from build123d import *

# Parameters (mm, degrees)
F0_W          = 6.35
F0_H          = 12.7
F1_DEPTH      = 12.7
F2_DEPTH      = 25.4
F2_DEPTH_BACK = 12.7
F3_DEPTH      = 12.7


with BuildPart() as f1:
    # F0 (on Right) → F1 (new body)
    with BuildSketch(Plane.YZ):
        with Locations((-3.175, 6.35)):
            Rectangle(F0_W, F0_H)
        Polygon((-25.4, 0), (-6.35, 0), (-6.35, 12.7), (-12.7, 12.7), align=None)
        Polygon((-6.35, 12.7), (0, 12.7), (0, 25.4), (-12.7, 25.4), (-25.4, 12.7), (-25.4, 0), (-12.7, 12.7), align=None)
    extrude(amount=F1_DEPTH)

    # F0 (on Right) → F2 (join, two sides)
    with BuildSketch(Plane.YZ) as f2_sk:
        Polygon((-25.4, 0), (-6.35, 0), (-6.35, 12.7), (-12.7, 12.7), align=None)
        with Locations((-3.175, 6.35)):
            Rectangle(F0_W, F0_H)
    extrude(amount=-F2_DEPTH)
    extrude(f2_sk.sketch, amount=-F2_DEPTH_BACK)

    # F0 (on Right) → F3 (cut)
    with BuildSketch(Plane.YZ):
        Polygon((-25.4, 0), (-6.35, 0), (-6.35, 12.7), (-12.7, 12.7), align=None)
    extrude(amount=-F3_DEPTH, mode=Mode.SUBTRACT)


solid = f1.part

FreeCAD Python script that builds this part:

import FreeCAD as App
import Part
import Sketcher
from FreeCAD import Vector
Q = App.Units.Quantity

doc = App.newDocument("Part")
params = doc.addObject("Spreadsheet::Sheet", "Params")
for row, (alias, value) in enumerate([
    ("sketch1_width", "1 in"),
    ("sketch1_width2", "0.5 in"),
    ("pad1_length", "0.5 in"),
    ("sketch2_width", "1 in"),
    ("sketch2_width2", "0.5 in"),
    ("pad2_length", "1 in"),
    ("pad3_length", "0.5 in"),
    ("sketch3_height", "0.5 in"),
    ("sketch3_width", "0.75 in"),
    ("pocket1_length", "0.5 in"),
], start=1):
    params.set(f"A{row}", alias)
    params.set(f"B{row}", "=" + value)
    params.setAlias(f"B{row}", alias)

body = doc.addObject("PartDesign::Body", "Body")

# Sketch on YZ plane
sketch1 = body.newObject("Sketcher::SketchObject", "Sketch")
sketch1.AttachmentSupport = (doc.getObject("YZ_Plane"), [""])
sketch1.MapMode = "FlatFace"
sketch1.addGeometry(Part.LineSegment(Vector(0, 0, 0), Vector(0, 25, 0)), False)
sketch1.addGeometry(Part.LineSegment(Vector(0, 25, 0), Vector(-13, 25, 0)), False)
sketch1.addGeometry(Part.LineSegment(Vector(-13, 25, 0), Vector(-25, 13, 0)), False)
sketch1.addGeometry(Part.LineSegment(Vector(-25, 13, 0), Vector(-25, 0, 0)), False)
sketch1.addGeometry(Part.LineSegment(Vector(-25, 0, 0), Vector(0, 0, 0)), False)
sketch1.addConstraint(Sketcher.Constraint("Coincident", 0, 2, 1, 1))
sketch1.addConstraint(Sketcher.Constraint("Coincident", 1, 2, 2, 1))
sketch1.addConstraint(Sketcher.Constraint("Coincident", 2, 2, 3, 1))
sketch1.addConstraint(Sketcher.Constraint("Coincident", 3, 2, 4, 1))
sketch1.addConstraint(Sketcher.Constraint("Coincident", 4, 2, 0, 1))
sketch1.addConstraint(Sketcher.Constraint("Vertical", 0))
sketch1.addConstraint(Sketcher.Constraint("Horizontal", 1))
sketch1.addConstraint(Sketcher.Constraint("Vertical", 3))
sketch1.addConstraint(Sketcher.Constraint("Horizontal", 4))
sketch1.addConstraint(Sketcher.Constraint("Coincident", 4, 2, -1, 1))
sketch1.addConstraint(Sketcher.Constraint("Equal", 4, 0))
sketch1.addConstraint(Sketcher.Constraint("Equal", 1, 3))
sketch1.addConstraint(Sketcher.Constraint("DistanceX", 4, 1, 4, 2, Q("1 in")))
sketch1.addConstraint(Sketcher.Constraint("DistanceX", 1, 2, 1, 1, Q("0.5 in")))
sketch1.setExpression("Constraints[12]", "Params.sketch1_width")
sketch1.setExpression("Constraints[13]", "Params.sketch1_width2")
pad1 = body.newObject("PartDesign::Pad", "Pad")
pad1.Profile = sketch1
pad1.setExpression("Length", "Params.pad1_length")

# Sketch on YZ plane
sketch2 = body.newObject("Sketcher::SketchObject", "Sketch001")
sketch2.AttachmentSupport = (doc.getObject("YZ_Plane"), [""])
sketch2.MapMode = "FlatFace"
sketch2.addGeometry(Part.LineSegment(Vector(-25, 0, 0), Vector(0, 0, 0)), False)
sketch2.addGeometry(Part.LineSegment(Vector(0, 0, 0), Vector(0, 13, 0)), False)
sketch2.addGeometry(Part.LineSegment(Vector(0, 13, 0), Vector(-13, 13, 0)), False)
sketch2.addGeometry(Part.LineSegment(Vector(-13, 13, 0), Vector(-25, 0, 0)), False)
sketch2.addConstraint(Sketcher.Constraint("Coincident", 0, 2, 1, 1))
sketch2.addConstraint(Sketcher.Constraint("Coincident", 1, 2, 2, 1))
sketch2.addConstraint(Sketcher.Constraint("Coincident", 2, 2, 3, 1))
sketch2.addConstraint(Sketcher.Constraint("Coincident", 3, 2, 0, 1))
sketch2.addConstraint(Sketcher.Constraint("Horizontal", 0))
sketch2.addConstraint(Sketcher.Constraint("Vertical", 1))
sketch2.addConstraint(Sketcher.Constraint("Horizontal", 2))
sketch2.addConstraint(Sketcher.Constraint("Coincident", 0, 2, -1, 1))
sketch2.addConstraint(Sketcher.Constraint("Equal", 2, 1))
sketch2.addConstraint(Sketcher.Constraint("DistanceX", 0, 1, 0, 2, Q("1 in")))
sketch2.addConstraint(Sketcher.Constraint("DistanceX", 2, 2, 2, 1, Q("0.5 in")))
sketch2.setExpression("Constraints[9]", "Params.sketch2_width")
sketch2.setExpression("Constraints[10]", "Params.sketch2_width2")
pad2 = body.newObject("PartDesign::Pad", "Pad001")
pad2.Profile = sketch2
pad2.setExpression("Length", "Params.pad2_length")
pad2.Reversed = True
pad3 = body.newObject("PartDesign::Pad", "Pad002")
pad3.Profile = sketch2
pad3.setExpression("Length", "Params.pad3_length")
pad3.Reversed = True

# Sketch on YZ plane
sketch3 = body.newObject("Sketcher::SketchObject", "Sketch002")
sketch3.AttachmentSupport = (doc.getObject("YZ_Plane"), [""])
sketch3.MapMode = "FlatFace"
sketch3.addGeometry(Part.LineSegment(Vector(-25, 0, 0), Vector(-6, 0, 0)), False)
sketch3.addGeometry(Part.LineSegment(Vector(-6, 0, 0), Vector(-6, 13, 0)), False)
sketch3.addGeometry(Part.LineSegment(Vector(-6, 13, 0), Vector(-13, 13, 0)), False)
sketch3.addGeometry(Part.LineSegment(Vector(-13, 13, 0), Vector(-25, 0, 0)), False)
sketch3.addConstraint(Sketcher.Constraint("Coincident", 0, 2, 1, 1))
sketch3.addConstraint(Sketcher.Constraint("Coincident", 1, 2, 2, 1))
sketch3.addConstraint(Sketcher.Constraint("Coincident", 2, 2, 3, 1))
sketch3.addConstraint(Sketcher.Constraint("Coincident", 3, 2, 0, 1))
sketch3.addConstraint(Sketcher.Constraint("Horizontal", 0))
sketch3.addConstraint(Sketcher.Constraint("Vertical", 1))
sketch3.addConstraint(Sketcher.Constraint("Horizontal", 2))
sketch3.addConstraint(Sketcher.Constraint("PointOnObject", 0, 2, -1))
sketch3.addConstraint(Sketcher.Constraint("DistanceY", 1, 1, 1, 2, Q("0.5 in")))
sketch3.addConstraint(Sketcher.Constraint("DistanceX", 3, 2, -1, 1, Q("1 in")))
sketch3.addConstraint(Sketcher.Constraint("Angle", 3, Q("-135 deg")))
sketch3.addConstraint(Sketcher.Constraint("DistanceX", 0, 1, 0, 2, Q("0.75 in")))
sketch3.setExpression("Constraints[8]", "Params.sketch3_height")
sketch3.setExpression("Constraints[11]", "Params.sketch3_width")
pocket1 = body.newObject("PartDesign::Pocket", "Pocket")
pocket1.Profile = sketch3
pocket1.setExpression("Length", "Params.pocket1_length")

doc.recompute()
